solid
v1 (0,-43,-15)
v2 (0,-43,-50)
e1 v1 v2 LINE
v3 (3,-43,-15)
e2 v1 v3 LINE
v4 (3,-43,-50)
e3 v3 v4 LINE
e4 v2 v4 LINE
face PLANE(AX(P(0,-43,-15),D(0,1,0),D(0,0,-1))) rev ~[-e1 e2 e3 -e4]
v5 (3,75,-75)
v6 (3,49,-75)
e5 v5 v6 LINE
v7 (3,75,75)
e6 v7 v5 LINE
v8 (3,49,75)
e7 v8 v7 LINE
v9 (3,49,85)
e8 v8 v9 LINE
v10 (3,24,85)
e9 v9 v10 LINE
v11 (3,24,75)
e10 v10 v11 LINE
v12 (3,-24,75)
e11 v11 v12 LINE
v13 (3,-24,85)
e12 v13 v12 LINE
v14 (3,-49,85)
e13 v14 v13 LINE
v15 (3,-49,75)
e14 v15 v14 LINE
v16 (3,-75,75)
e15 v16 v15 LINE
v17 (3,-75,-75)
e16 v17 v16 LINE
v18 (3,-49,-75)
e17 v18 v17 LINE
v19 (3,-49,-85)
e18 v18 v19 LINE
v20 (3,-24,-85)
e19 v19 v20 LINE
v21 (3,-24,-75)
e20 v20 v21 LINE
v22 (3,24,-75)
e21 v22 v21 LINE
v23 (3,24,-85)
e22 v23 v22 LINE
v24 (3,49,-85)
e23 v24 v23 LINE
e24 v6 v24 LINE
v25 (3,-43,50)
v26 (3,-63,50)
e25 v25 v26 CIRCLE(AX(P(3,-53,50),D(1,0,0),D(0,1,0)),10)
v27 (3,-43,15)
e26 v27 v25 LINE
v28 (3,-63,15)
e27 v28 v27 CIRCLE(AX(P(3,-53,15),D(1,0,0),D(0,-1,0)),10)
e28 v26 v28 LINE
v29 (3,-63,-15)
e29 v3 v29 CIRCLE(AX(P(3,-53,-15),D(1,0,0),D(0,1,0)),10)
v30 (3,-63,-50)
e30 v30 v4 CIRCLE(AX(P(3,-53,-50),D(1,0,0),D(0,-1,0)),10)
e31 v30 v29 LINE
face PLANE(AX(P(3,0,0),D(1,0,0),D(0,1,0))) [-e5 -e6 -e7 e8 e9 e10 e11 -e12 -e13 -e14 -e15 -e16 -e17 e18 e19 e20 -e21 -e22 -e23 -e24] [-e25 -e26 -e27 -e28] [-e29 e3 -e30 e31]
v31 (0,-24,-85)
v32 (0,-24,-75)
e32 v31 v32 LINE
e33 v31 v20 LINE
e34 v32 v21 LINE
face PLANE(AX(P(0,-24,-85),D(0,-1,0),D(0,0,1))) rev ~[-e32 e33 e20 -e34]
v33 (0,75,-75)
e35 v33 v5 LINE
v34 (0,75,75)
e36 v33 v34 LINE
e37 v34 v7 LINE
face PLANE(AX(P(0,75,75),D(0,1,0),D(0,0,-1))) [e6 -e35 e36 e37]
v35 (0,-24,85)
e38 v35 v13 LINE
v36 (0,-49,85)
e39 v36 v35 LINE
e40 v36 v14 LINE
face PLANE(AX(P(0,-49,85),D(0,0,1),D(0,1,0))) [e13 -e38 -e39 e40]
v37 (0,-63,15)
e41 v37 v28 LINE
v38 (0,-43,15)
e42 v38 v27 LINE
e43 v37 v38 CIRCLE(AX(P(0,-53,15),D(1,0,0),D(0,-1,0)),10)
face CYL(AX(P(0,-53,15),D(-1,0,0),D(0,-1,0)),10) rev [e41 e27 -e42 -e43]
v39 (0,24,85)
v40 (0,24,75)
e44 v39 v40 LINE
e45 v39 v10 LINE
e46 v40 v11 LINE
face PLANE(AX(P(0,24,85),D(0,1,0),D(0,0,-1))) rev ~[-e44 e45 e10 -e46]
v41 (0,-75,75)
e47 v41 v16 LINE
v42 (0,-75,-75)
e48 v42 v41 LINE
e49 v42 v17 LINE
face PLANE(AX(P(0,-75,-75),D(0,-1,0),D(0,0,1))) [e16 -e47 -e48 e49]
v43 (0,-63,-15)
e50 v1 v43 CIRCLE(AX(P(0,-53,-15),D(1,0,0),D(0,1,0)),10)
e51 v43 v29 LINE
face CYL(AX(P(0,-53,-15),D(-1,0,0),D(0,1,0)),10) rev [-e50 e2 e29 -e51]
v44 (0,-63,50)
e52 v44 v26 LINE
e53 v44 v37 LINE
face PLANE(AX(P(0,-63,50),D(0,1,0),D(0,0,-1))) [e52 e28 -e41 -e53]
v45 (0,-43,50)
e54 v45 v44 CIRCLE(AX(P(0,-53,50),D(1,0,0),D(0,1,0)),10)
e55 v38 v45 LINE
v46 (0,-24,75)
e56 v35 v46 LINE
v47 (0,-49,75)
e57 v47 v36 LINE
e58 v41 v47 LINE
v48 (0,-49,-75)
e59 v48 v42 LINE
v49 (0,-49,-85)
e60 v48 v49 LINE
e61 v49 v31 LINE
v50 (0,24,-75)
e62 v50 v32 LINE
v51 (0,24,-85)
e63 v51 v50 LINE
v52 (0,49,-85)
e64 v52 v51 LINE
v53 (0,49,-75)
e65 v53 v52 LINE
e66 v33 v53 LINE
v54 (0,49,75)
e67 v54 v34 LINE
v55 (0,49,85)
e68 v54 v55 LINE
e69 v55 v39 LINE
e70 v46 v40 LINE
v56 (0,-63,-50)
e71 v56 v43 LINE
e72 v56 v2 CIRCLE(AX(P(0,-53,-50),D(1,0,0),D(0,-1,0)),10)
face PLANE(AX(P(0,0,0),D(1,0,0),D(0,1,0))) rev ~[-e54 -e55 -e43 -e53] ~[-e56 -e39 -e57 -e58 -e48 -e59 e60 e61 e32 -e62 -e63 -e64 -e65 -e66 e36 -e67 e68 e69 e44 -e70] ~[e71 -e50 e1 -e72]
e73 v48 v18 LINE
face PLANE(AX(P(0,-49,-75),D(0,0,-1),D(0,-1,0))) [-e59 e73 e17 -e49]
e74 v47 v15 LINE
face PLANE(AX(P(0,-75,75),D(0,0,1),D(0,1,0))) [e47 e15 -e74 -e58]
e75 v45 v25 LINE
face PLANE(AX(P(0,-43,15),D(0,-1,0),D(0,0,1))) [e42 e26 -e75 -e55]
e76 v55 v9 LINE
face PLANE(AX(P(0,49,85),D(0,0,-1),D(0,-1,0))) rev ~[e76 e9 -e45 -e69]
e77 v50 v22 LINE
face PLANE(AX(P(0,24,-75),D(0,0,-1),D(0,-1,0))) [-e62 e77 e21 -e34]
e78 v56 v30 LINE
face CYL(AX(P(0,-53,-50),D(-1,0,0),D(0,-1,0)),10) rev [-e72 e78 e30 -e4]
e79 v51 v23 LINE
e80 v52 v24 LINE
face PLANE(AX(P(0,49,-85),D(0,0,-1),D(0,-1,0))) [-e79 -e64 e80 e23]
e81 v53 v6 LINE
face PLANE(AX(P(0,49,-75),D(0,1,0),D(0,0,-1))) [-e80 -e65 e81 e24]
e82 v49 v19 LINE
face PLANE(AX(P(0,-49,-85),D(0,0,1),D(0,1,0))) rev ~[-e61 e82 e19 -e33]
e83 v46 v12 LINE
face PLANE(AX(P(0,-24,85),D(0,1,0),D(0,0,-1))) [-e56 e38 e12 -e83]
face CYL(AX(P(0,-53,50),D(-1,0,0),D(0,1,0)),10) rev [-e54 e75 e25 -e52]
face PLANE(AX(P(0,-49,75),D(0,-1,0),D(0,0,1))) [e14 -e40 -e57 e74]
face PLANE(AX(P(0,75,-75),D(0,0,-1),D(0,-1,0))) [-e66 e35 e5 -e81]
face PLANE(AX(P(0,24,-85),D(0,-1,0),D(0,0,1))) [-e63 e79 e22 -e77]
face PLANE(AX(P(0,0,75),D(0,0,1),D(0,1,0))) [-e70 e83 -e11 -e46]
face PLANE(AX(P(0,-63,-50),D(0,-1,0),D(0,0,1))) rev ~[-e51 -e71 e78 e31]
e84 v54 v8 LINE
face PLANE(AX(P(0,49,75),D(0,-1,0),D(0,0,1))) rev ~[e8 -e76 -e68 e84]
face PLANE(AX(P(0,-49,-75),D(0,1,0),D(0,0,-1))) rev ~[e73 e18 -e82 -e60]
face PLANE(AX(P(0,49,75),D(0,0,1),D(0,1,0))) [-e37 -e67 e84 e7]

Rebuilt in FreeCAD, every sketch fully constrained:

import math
import FreeCAD as App
import Part
import Sketcher
from FreeCAD import Vector

doc = App.newDocument("Part")
body = doc.addObject("PartDesign::Body", "Body")

sketch1 = body.newObject("Sketcher::SketchObject", "Sketch")
sketch1.AttachmentSupport = (doc.getObject("YZ_Plane"), [""])
sketch1.MapMode = "FlatFace"
sketch1.addGeometry([
    Part.LineSegment(Vector(75, 75, 0), Vector(49, 75, 0)),
    Part.LineSegment(Vector(49, 75, 0), Vector(49, 85, 0)),
    Part.LineSegment(Vector(49, 85, 0), Vector(24, 85, 0)),
    Part.LineSegment(Vector(24, 85, 0), Vector(24, 75, 0)),
    Part.LineSegment(Vector(24, 75, 0), Vector(-24, 75, 0)),
    Part.LineSegment(Vector(-24, 75, 0), Vector(-24, 85, 0)),
    Part.LineSegment(Vector(-24, 85, 0), Vector(-49, 85, 0)),
    Part.LineSegment(Vector(-49, 85, 0), Vector(-49, 75, 0)),
    Part.LineSegment(Vector(-49, 75, 0), Vector(-75, 75, 0)),
    Part.LineSegment(Vector(-75, 75, 0), Vector(-75, -75, 0)),
    Part.LineSegment(Vector(-75, -75, 0), Vector(-49, -75, 0)),
    Part.LineSegment(Vector(-49, -75, 0), Vector(-49, -85, 0)),
    Part.LineSegment(Vector(-49, -85, 0), Vector(-24, -85, 0)),
    Part.LineSegment(Vector(-24, -85, 0), Vector(-24, -75, 0)),
    Part.LineSegment(Vector(-24, -75, 0), Vector(24, -75, 0)),
    Part.LineSegment(Vector(24, -75, 0), Vector(24, -85, 0)),
    Part.LineSegment(Vector(24, -85, 0), Vector(49, -85, 0)),
    Part.LineSegment(Vector(49, -85, 0), Vector(49, -75, 0)),
    Part.LineSegment(Vector(49, -75, 0), Vector(75, -75, 0)),
    Part.LineSegment(Vector(75, -75, 0), Vector(75, 75, 0)),
    Part.LineSegment(Vector(-43, 50, 0), Vector(-43, 15, 0)),
    Part.ArcOfCircle(Part.Circle(Vector(-53, 15, 0), Vector(0, 0, 1), 10), math.radians(180), math.radians(360)),
    Part.LineSegment(Vector(-63, 15, 0), Vector(-63, 50, 0)),
    Part.ArcOfCircle(Part.Circle(Vector(-53, 50, 0), Vector(0, 0, 1), 10), math.radians(0), math.radians(180)),
    Part.ArcOfCircle(Part.Circle(Vector(-53, -15, 0), Vector(0, 0, 1), 10), math.radians(0), math.radians(180)),
    Part.LineSegment(Vector(-43, -15, 0), Vector(-43, -50, 0)),
    Part.ArcOfCircle(Part.Circle(Vector(-53, -50, 0), Vector(0, 0, 1), 10), math.radians(180), math.radians(360)),
    Part.LineSegment(Vector(-63, -50, 0), Vector(-63, -15, 0)),
], False)
sketch1.addConstraint([
    Sketcher.Constraint("Coincident", 0, 2, 1, 1),
    Sketcher.Constraint("Coincident", 1, 2, 2, 1),
    Sketcher.Constraint("Coincident", 2, 2, 3, 1),
    Sketcher.Constraint("Coincident", 3, 2, 4, 1),
    Sketcher.Constraint("Coincident", 4, 2, 5, 1),
    Sketcher.Constraint("Coincident", 5, 2, 6, 1),
    Sketcher.Constraint("Coincident", 6, 2, 7, 1),
    Sketcher.Constraint("Coincident", 7, 2, 8, 1),
    Sketcher.Constraint("Coincident", 8, 2, 9, 1),
    Sketcher.Constraint("Coincident", 9, 2, 10, 1),
    Sketcher.Constraint("Coincident", 10, 2, 11, 1),
    Sketcher.Constraint("Coincident", 11, 2, 12, 1),
    Sketcher.Constraint("Coincident", 12, 2, 13, 1),
    Sketcher.Constraint("Coincident", 13, 2, 14, 1),
    Sketcher.Constraint("Coincident", 14, 2, 15, 1),
    Sketcher.Constraint("Coincident", 15, 2, 16, 1),
    Sketcher.Constraint("Coincident", 16, 2, 17, 1),
    Sketcher.Constraint("Coincident", 17, 2, 18, 1),
    Sketcher.Constraint("Coincident", 18, 2, 19, 1),
    Sketcher.Constraint("Coincident", 19, 2, 0, 1),
    Sketcher.Constraint("Tangent", 20, 2, 21, 2),
    Sketcher.Constraint("Tangent", 21, 1, 22, 1),
    Sketcher.Constraint("Tangent", 22, 2, 23, 2),
    Sketcher.Constraint("Tangent", 23, 1, 20, 1),
    Sketcher.Constraint("Tangent", 24, 1, 25, 1),
    Sketcher.Constraint("Tangent", 25, 2, 26, 2),
    Sketcher.Constraint("Tangent", 26, 1, 27, 1),
    Sketcher.Constraint("Tangent", 27, 2, 24, 2),
    Sketcher.Constraint("Horizontal", 0),
    Sketcher.Constraint("Vertical", 1),
    Sketcher.Constraint("Horizontal", 2),
    Sketcher.Constraint("Vertical", 3),
    Sketcher.Constraint("Horizontal", 4),
    Sketcher.Constraint("Vertical", 5),
    Sketcher.Constraint("Horizontal", 6),
    Sketcher.Constraint("Vertical", 7),
    Sketcher.Constraint("Horizontal", 8),
    Sketcher.Constraint("Vertical", 9),
    Sketcher.Constraint("Horizontal", 10),
    Sketcher.Constraint("Vertical", 11),
    Sketcher.Constraint("Horizontal", 12),
    Sketcher.Constraint("Vertical", 13),
    Sketcher.Constraint("Horizontal", 14),
    Sketcher.Constraint("Vertical", 15),
    Sketcher.Constraint("Horizontal", 16),
    Sketcher.Constraint("Vertical", 17),
    Sketcher.Constraint("Horizontal", 18),
    Sketcher.Constraint("Vertical", 19),
    Sketcher.Constraint("Vertical", 20),
    Sketcher.Constraint("Vertical", 22),
    Sketcher.Constraint("Vertical", 25),
    Sketcher.Constraint("Vertical", 27),
    Sketcher.Constraint("Equal", 23, 24),
    Sketcher.Constraint("Symmetric", 0, 2, 10, 2, -1, 1),
    Sketcher.Constraint("Symmetric", 2, 2, 12, 2, -1, 1),
    Sketcher.Constraint("Symmetric", 4, 2, 14, 2, -1, 1),
    Sketcher.Constraint("Symmetric", 6, 2, 16, 2, -1, 1),
    Sketcher.Constraint("Symmetric", 8, 2, 18, 2, -1, 1),
    Sketcher.Constraint("Symmetric", 2, 2, 5, 2, -2),
    Sketcher.Constraint("Symmetric", 0, 2, 7, 2, -2),
    Sketcher.Constraint("Symmetric", 21, 3, 24, 3, -1),
    Sketcher.Constraint("Horizontal", 0, 2, 3, 2),
    Sketcher.Constraint("Equal", 22, 25),
    Sketcher.Constraint("Radius", 21, 10.0),
    Sketcher.Constraint("DistanceX", 0, 2, 0, 1, 26.0),
    Sketcher.Constraint("DistanceX", 2, 2, 2, 1, 25.0),
    Sketcher.Constraint("DistanceY", 1, 1, 1, 2, 10.0),
    Sketcher.Constraint("DistanceY", 9, 2, 9, 1, 150.0),
    Sketcher.Constraint("DistanceY", 20, 2, 20, 1, 35.0),
    Sketcher.Constraint("DistanceY", 23, 3, 0, 2, 25.0),
    Sketcher.Constraint("DistanceX", 8, 2, 23, 3, 22.0),
    Sketcher.Constraint("DistanceX", 4, 2, 4, 1, 48.0),
])
pad1 = body.newObject("PartDesign::Pad", "Pad")
pad1.Profile = sketch1
pad1.Length = 3

doc.recompute()
